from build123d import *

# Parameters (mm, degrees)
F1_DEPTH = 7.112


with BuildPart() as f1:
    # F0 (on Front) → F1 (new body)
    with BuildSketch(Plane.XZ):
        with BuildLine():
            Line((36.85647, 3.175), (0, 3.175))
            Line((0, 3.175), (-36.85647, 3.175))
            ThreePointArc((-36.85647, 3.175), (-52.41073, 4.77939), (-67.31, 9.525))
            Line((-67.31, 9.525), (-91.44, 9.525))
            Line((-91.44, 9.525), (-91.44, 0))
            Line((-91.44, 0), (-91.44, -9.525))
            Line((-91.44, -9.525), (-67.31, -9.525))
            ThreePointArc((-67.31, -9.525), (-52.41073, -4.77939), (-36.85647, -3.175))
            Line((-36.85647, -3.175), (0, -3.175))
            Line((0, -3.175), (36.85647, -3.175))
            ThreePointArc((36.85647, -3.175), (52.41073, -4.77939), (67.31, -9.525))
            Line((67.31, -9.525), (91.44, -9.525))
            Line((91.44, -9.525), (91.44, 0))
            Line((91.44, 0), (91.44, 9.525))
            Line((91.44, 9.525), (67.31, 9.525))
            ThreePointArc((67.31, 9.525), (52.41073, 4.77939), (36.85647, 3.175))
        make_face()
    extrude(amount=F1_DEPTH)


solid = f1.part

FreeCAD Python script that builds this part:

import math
import FreeCAD as App
import Part
import Sketcher

V = App.Vector
Q = App.Units.Quantity

doc = App.newDocument("Part")
params = doc.addObject("Spreadsheet::Sheet", "Params")
for row, (alias, value) in enumerate([
    ("sketch1_width", "0.95 in"),
    ("sketch1_height", "0.75 in"),
    ("pad1_length", "0.28 in"),
], start=1):
    params.set(f"A{row}", alias)
    params.set(f"B{row}", "=" + value)
    params.setAlias(f"B{row}", alias)

body = doc.addObject("PartDesign::Body", "Body")

sketch1 = body.newObject("Sketcher::SketchObject", "Sketch")
sketch1.AttachmentSupport = (doc.getObject("XZ_Plane"), [""])
sketch1.MapMode = "FlatFace"
sketch1.addGeometry([
    Part.LineSegment(V(36.85647, 3.175, 0), V(-36.85647, 3.175, 0)),
    Part.ArcOfCircle(Part.Circle(V(-36.856472, 79.374988, 0), V(0, 0, 1), 76.199988), math.radians(-113.556466), math.radians(-89.999998)),
    Part.LineSegment(V(-67.31, 9.525, 0), V(-91.44, 9.525, 0)),
    Part.LineSegment(V(-91.44, 9.525, 0), V(-91.44, -9.525, 0)),
    Part.LineSegment(V(-91.44, -9.525, 0), V(-67.31, -9.525, 0)),
    Part.ArcOfCircle(Part.Circle(V(-36.856472, -79.374988, 0), V(0, 0, 1), 76.199988), math.radians(89.999998), math.radians(113.556466)),
    Part.LineSegment(V(-36.85647, -3.175, 0), V(36.85647, -3.175, 0)),
    Part.ArcOfCircle(Part.Circle(V(36.856472, -79.374988, 0), V(0, 0, 1), 76.199988), math.radians(66.443534), math.radians(90.000002)),
    Part.LineSegment(V(67.31, -9.525, 0), V(91.44, -9.525, 0)),
    Part.LineSegment(V(91.44, -9.525, 0), V(91.44, 9.525, 0)),
    Part.LineSegment(V(91.44, 9.525, 0), V(67.31, 9.525, 0)),
    Part.ArcOfCircle(Part.Circle(V(36.856472, 79.374988, 0), V(0, 0, 1), 76.199988), math.radians(-90.000002), math.radians(-66.443534)),
], False)
sketch1.addConstraint([
    Sketcher.Constraint("Tangent", 0, 2, 1, 2),
    Sketcher.Constraint("Coincident", 1, 1, 2, 1),
    Sketcher.Constraint("Coincident", 2, 2, 3, 1),
    Sketcher.Constraint("Coincident", 3, 2, 4, 1),
    Sketcher.Constraint("Coincident", 4, 2, 5, 2),
    Sketcher.Constraint("Tangent", 5, 1, 6, 1),
    Sketcher.Constraint("Tangent", 6, 2, 7, 2),
    Sketcher.Constraint("Coincident", 7, 1, 8, 1),
    Sketcher.Constraint("Coincident", 8, 2, 9, 1),
    Sketcher.Constraint("Coincident", 9, 2, 10, 1),
    Sketcher.Constraint("Coincident", 10, 2, 11, 2),
    Sketcher.Constraint("Tangent", 11, 1, 0, 1),
    Sketcher.Constraint("Horizontal", 0),
    Sketcher.Constraint("Horizontal", 2),
    Sketcher.Constraint("Vertical", 3),
    Sketcher.Constraint("Horizontal", 4),
    Sketcher.Constraint("Horizontal", 6),
    Sketcher.Constraint("Horizontal", 8),
    Sketcher.Constraint("Vertical", 9),
    Sketcher.Constraint("Horizontal", 10),
    Sketcher.Constraint("Equal", 1, 5),
    Sketcher.Constraint("Equal", 5, 7),
    Sketcher.Constraint("Equal", 7, 11),
    Sketcher.Constraint("Symmetric", 1, 3, 7, 3, -1, 1),
    Sketcher.Constraint("Symmetric", 2, 2, 8, 2, -1, 1),
    Sketcher.Constraint("Symmetric", 4, 2, 10, 2, -1, 1),
    Sketcher.Constraint("Symmetric", 4, 2, 7, 1, -2),
    Sketcher.Constraint("DistanceX", 2, 2, 2, 1, Q("0.95 in")),
    Sketcher.Constraint("DistanceY", 3, 2, 3, 1, Q("0.75 in")),
    Sketcher.Constraint("DistanceX", 2, 2, -1, 1, Q("3.6 in")),
    Sketcher.Constraint("DistanceY", 3, 2, 0, 2, Q("0.5 in")),
    Sketcher.Constraint("Radius", 1, Q("76.199988 mm")),
])
sketch1.setExpression("Constraints[27]", "Params.sketch1_width")
sketch1.setExpression("Constraints[28]", "Params.sketch1_height")
pad1 = body.newObject("PartDesign::Pad", "Pad")
pad1.Profile = sketch1
pad1.setExpression("Length", "Params.pad1_length")

doc.recompute()
